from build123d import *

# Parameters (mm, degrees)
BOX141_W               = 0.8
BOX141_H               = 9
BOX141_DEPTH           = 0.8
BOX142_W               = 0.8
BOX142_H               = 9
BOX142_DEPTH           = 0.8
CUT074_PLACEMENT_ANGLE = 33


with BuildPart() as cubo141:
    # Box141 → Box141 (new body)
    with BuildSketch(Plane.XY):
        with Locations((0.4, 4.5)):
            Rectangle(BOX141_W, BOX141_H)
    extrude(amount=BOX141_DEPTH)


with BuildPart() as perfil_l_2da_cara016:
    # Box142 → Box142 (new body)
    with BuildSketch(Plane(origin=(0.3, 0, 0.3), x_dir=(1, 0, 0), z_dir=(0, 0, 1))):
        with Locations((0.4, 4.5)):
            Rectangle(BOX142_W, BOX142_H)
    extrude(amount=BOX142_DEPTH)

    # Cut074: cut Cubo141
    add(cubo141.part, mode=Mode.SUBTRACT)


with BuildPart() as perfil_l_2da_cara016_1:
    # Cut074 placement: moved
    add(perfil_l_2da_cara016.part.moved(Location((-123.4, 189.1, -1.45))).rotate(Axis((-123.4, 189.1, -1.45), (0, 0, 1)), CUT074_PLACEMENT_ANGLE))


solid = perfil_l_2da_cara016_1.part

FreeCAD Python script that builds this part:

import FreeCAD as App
import Part
import Sketcher
from FreeCAD import Vector
Q = App.Units.Quantity

doc = App.newDocument("Part")
body = doc.addObject("PartDesign::Body", "Body")

# Sketch on XY plane
sketch1 = body.newObject("Sketcher::SketchObject", "Sketch")
sketch1.AttachmentSupport = (doc.getObject("XY_Plane"), [""])
sketch1.MapMode = "FlatFace"
sketch1.addGeometry(Part.LineSegment(Vector(0, 9, 0), Vector(0, 0, 0)), False)
sketch1.addGeometry(Part.LineSegment(Vector(0, 0, 0), Vector(0.8, 0, 0)), False)
sketch1.addGeometry(Part.LineSegment(Vector(0.8, 0, 0), Vector(0.8, 9, 0)), False)
sketch1.addGeometry(Part.LineSegment(Vector(0.8, 9, 0), Vector(0, 9, 0)), False)
sketch1.addConstraint(Sketcher.Constraint("Coincident", 0, 2, 1, 1))
sketch1.addConstraint(Sketcher.Constraint("Coincident", 1, 2, 2, 1))
sketch1.addConstraint(Sketcher.Constraint("Coincident", 2, 2, 3, 1))
sketch1.addConstraint(Sketcher.Constraint("Coincident", 3, 2, 0, 1))
sketch1.addConstraint(Sketcher.Constraint("Vertical", 0))
sketch1.addConstraint(Sketcher.Constraint("Horizontal", 1))
sketch1.addConstraint(Sketcher.Constraint("Vertical", 2))
sketch1.addConstraint(Sketcher.Constraint("Horizontal", 3))
sketch1.addConstraint(Sketcher.Constraint("Coincident", 0, 2, -1, 1))
sketch1.addConstraint(Sketcher.Constraint("DistanceY", 0, 2, 0, 1, Q("9 mm")))
sketch1.addConstraint(Sketcher.Constraint("DistanceX", 1, 1, 1, 2, Q("0.8 mm")))
pad1 = body.newObject("PartDesign::Pad", "Pad")
pad1.Profile = sketch1
pad1.Length = 0.8
body2 = doc.addObject("PartDesign::Body", "Body001")

# Sketch on XY plane
sketch2 = body2.newObject("Sketcher::SketchObject", "Sketch001")
sketch2.AttachmentSupport = (doc.getObject("XY_Plane001"), [""])
sketch2.MapMode = "FlatFace"
sketch2.AttachmentOffset = App.Placement(Vector(0, 0, 0.3), App.Rotation())
sketch2.addGeometry(Part.LineSegment(Vector(0.3, 9, 0), Vector(0.3, 0, 0)), False)
sketch2.addGeometry(Part.LineSegment(Vector(0.3, 0, 0), Vector(1.1, 0, 0)), False)
sketch2.addGeometry(Part.LineSegment(Vector(1.1, 0, 0), Vector(1.1, 9, 0)), False)
sketch2.addGeometry(Part.LineSegment(Vector(1.1, 9, 0), Vector(0.3, 9, 0)), False)
sketch2.addConstraint(Sketcher.Constraint("Coincident", 0, 2, 1, 1))
sketch2.addConstraint(Sketcher.Constraint("Coincident", 1, 2, 2, 1))
sketch2.addConstraint(Sketcher.Constraint("Coincident", 2, 2, 3, 1))
sketch2.addConstraint(Sketcher.Constraint("Coincident", 3, 2, 0, 1))
sketch2.addConstraint(Sketcher.Constraint("Vertical", 0))
sketch2.addConstraint(Sketcher.Constraint("Horizontal", 1))
sketch2.addConstraint(Sketcher.Constraint("Vertical", 2))
sketch2.addConstraint(Sketcher.Constraint("Horizontal", 3))
sketch2.addConstraint(Sketcher.Constraint("PointOnObject", 0, 2, -1))
sketch2.addConstraint(Sketcher.Constraint("DistanceY", 0, 2, 0, 1, Q("9 mm")))
sketch2.addConstraint(Sketcher.Constraint("DistanceX", 1, 1, 1, 2, Q("0.8 mm")))
sketch2.addConstraint(Sketcher.Constraint("DistanceX", -1, 1, 0, 2, Q("0.3 mm")))
pad2 = body2.newObject("PartDesign::Pad", "Pad001")
pad2.Profile = sketch2
pad2.Length = 0.8
doc.recompute()

boolean = body2.newObject("PartDesign::Boolean", "Boolean")
boolean.Type = "Cut"
boolean.addObjects([body])
body3 = doc.addObject("PartDesign::Body", "Body002")
doc.recompute()

body2.Placement = App.Placement(Vector(-123.4, 189.1, -1.45), App.Rotation(Vector(0, 0, 1), 33))
boolean2 = body3.newObject("PartDesign::Boolean", "Boolean001")
boolean2.Type = "Fuse"
boolean2.addObjects([body2])

doc.recompute()
